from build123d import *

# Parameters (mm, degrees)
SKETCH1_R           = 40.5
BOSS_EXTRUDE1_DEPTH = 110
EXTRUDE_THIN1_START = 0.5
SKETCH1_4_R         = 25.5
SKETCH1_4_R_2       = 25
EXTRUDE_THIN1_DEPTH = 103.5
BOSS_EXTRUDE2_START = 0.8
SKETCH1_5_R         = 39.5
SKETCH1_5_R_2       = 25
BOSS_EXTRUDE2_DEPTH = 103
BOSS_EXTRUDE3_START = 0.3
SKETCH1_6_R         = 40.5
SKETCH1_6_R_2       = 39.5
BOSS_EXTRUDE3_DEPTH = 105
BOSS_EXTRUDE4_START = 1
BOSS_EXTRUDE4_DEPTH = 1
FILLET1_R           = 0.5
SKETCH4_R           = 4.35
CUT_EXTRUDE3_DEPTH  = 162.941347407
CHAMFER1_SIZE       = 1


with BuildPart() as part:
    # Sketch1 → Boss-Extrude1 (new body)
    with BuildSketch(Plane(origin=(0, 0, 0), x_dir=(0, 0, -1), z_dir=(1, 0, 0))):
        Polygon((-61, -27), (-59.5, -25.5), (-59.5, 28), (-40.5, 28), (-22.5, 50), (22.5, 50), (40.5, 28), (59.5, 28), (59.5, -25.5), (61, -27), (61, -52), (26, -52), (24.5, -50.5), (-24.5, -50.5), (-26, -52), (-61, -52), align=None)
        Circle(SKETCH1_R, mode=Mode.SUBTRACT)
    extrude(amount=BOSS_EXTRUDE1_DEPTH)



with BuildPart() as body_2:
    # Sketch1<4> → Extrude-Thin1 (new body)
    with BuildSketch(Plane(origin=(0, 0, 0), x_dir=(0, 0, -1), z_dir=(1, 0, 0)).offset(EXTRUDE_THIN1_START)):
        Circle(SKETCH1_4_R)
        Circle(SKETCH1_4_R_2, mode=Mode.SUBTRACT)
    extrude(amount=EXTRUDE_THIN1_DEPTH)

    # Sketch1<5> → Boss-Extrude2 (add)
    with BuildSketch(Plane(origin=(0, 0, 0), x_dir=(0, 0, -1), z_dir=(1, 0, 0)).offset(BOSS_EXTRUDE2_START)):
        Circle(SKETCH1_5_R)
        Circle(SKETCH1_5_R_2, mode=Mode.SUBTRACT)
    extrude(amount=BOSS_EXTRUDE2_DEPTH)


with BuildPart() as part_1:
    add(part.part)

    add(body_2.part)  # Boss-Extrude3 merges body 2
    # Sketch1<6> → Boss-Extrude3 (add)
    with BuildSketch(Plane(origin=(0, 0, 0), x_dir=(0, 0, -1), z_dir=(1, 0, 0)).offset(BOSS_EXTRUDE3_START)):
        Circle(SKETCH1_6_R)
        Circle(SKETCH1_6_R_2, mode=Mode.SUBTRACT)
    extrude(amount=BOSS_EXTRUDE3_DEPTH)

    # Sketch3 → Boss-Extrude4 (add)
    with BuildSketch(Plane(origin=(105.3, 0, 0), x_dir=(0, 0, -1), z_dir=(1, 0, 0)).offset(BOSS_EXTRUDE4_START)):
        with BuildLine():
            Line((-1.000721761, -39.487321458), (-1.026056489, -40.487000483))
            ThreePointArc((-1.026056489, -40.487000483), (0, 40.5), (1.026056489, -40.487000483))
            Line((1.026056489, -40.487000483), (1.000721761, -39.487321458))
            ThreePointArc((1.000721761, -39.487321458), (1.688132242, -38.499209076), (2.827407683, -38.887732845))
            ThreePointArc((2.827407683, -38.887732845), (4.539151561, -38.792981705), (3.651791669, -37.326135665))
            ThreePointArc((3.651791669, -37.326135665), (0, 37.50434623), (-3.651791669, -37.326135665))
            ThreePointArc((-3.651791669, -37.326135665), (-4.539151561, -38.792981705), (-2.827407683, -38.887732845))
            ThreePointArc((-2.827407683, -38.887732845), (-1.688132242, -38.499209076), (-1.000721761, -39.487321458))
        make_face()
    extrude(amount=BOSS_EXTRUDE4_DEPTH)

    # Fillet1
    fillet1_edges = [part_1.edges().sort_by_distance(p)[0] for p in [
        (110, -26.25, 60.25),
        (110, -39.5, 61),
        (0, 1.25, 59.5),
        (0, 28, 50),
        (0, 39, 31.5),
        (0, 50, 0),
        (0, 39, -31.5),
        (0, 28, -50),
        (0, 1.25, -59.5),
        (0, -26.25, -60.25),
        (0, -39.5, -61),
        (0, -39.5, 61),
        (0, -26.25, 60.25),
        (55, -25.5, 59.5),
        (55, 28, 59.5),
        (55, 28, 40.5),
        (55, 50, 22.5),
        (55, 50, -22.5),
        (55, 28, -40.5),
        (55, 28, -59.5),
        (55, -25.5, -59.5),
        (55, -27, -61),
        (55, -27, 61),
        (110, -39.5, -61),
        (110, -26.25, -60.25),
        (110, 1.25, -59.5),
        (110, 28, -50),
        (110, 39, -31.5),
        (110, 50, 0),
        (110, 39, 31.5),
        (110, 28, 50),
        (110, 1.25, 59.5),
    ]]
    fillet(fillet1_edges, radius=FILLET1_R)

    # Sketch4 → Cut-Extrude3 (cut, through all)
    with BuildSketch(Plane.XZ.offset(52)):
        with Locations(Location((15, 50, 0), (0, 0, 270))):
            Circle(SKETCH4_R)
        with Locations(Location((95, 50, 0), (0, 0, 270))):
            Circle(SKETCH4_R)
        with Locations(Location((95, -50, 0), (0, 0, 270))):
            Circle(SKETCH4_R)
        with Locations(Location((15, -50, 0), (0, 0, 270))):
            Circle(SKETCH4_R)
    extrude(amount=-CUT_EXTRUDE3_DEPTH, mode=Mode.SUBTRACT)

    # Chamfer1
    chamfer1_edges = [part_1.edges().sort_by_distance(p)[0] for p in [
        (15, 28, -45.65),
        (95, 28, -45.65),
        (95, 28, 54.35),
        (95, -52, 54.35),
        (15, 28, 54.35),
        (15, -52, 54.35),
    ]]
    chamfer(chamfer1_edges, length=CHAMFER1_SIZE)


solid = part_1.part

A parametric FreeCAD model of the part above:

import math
import FreeCAD as App
import Part
import Sketcher

V = App.Vector
Q = App.Units.Quantity


def edges_at(feature, points):
    """Names of the edges that pass closest to the given points."""
    edges = feature.Shape.Edges
    near = lambda p: min(range(len(edges)), key=lambda i: edges[i].distToShape(Part.Vertex(*p))[0])
    return sorted({f"Edge{near(p) + 1}" for p in points})


def add_polygon(sketch, points):
    """Adds a closed chain of lines whose ends are joined by coincident constraints."""
    first, n = sketch.GeometryCount, len(points)
    for a, b in zip(points, points[1:] + points[:1]):
        sketch.addGeometry(Part.LineSegment(App.Vector(*a, 0), App.Vector(*b, 0)), False)
    for i in range(n):
        sketch.addConstraint(Sketcher.Constraint("Coincident", first + i, 2, first + (i + 1) % n, 1))

doc = App.newDocument("Part")
body = doc.addObject("PartDesign::Body", "Body")

sketch1 = body.newObject("Sketcher::SketchObject", "Sketch")
sketch1.AttachmentSupport = (doc.getObject("YZ_Plane"), [""])
sketch1.MapMode = "FlatFace"
add_polygon(sketch1, [(-25.5, 59.5), (-27, 61), (-52, 61), (-52, 26), (-50.5, 24.5), (-50.5, -24.5), (-52, -26), (-52, -61), (-27, -61), (-25.5, -59.5), (28, -59.5), (28, -40.5), (50, -22.5), (50, 22.5), (28, 40.5), (28, 59.5)])
sketch1.addGeometry(Part.Circle(V(0, 0, 0), V(0, 0, 1), 40.5), False)
sketch1.addConstraint([
    Sketcher.Constraint("Horizontal", 1),
    Sketcher.Constraint("Vertical", 2),
    Sketcher.Constraint("Vertical", 4),
    Sketcher.Constraint("Vertical", 6),
    Sketcher.Constraint("Horizontal", 7),
    Sketcher.Constraint("Horizontal", 9),
    Sketcher.Constraint("Vertical", 10),
    Sketcher.Constraint("Vertical", 12),
    Sketcher.Constraint("Vertical", 14),
    Sketcher.Constraint("Horizontal", 15),
    Sketcher.Constraint("Coincident", 16, 3, -1, 1),
    Sketcher.Constraint("Symmetric", 2, 2, 5, 2, -1),
    Sketcher.Constraint("Symmetric", 0, 2, 7, 2, -1),
    Sketcher.Constraint("Symmetric", 10, 2, 13, 2, -1),
    Sketcher.Constraint("Symmetric", 8, 2, 15, 2, -1),
    Sketcher.Constraint("Parallel", 0, 3),
    Sketcher.Constraint("Perpendicular", 3, 5),
    Sketcher.Constraint("Parallel", 5, 8),
    Sketcher.Constraint("Equal", 0, 3),
    Sketcher.Constraint("Equal", 11, 13),
    Sketcher.Constraint("Diameter", 16, Q("81 mm")),
    Sketcher.Constraint("DistanceX", 1, 2, 1, 1, Q("25 mm")),
    Sketcher.Constraint("DistanceY", 2, 2, 2, 1, Q("35 mm")),
    Sketcher.Constraint("DistanceY", 4, 2, 4, 1, Q("49 mm")),
    Sketcher.Constraint("DistanceY", 10, 1, 10, 2, Q("19 mm")),
    Sketcher.Constraint("DistanceY", 12, 1, 12, 2, Q("45 mm")),
    Sketcher.Constraint("DistanceX", 9, 1, 9, 2, Q("53.5 mm")),
    Sketcher.Constraint("DistanceX", 0, 2, -1, 1, Q("27 mm")),
    Sketcher.Constraint("DistanceY", -1, 1, 0, 2, Q("61 mm")),
    Sketcher.Constraint("DistanceX", -1, 1, 11, 2, Q("50 mm")),
])
pad1 = body.newObject("PartDesign::Pad", "Pad")
pad1.Profile = sketch1
pad1.Length = 110
body2 = doc.addObject("PartDesign::Body", "Body001")

sketch2 = body2.newObject("Sketcher::SketchObject", "Sketch001")
sketch2.AttachmentSupport = (doc.getObject("YZ_Plane001"), [""])
sketch2.MapMode = "FlatFace"
sketch2.AttachmentOffset = App.Placement(V(0, 0, 0.5), App.Rotation())
sketch2.addGeometry([
    Part.Circle(V(0, 0, 0), V(0, 0, 1), 26),
    Part.Circle(V(0, 0, 0), V(0, 0, 1), 25),
], False)
sketch2.addConstraint([
    Sketcher.Constraint("Coincident", 0, 3, -1, 1),
    Sketcher.Constraint("Coincident", 1, 3, -1, 1),
    Sketcher.Constraint("Diameter", 0, Q("51 mm")),
    Sketcher.Constraint("Diameter", 1, Q("50 mm")),
])
pad2 = body2.newObject("PartDesign::Pad", "Pad001")
pad2.Profile = sketch2
pad2.Length = 103.5

sketch3 = body2.newObject("Sketcher::SketchObject", "Sketch002")
sketch3.AttachmentSupport = (doc.getObject("YZ_Plane001"), [""])
sketch3.MapMode = "FlatFace"
sketch3.AttachmentOffset = App.Placement(V(0, 0, 0.8), App.Rotation())
sketch3.addGeometry([
    Part.Circle(V(0, 0, 0), V(0, 0, 1), 40),
    Part.Circle(V(0, 0, 0), V(0, 0, 1), 25),
], False)
sketch3.addConstraint([
    Sketcher.Constraint("Coincident", 0, 3, -1, 1),
    Sketcher.Constraint("Coincident", 1, 3, -1, 1),
    Sketcher.Constraint("Diameter", 0, Q("79 mm")),
    Sketcher.Constraint("Diameter", 1, Q("50 mm")),
])
pad3 = body2.newObject("PartDesign::Pad", "Pad002")
pad3.Profile = sketch3
pad3.Length = 103
body.AllowCompound = True
doc.recompute()

boolean = body.newObject("PartDesign::Boolean", "Boolean")
boolean.Type = "Fuse"
boolean.addObjects([body2])

sketch4 = body.newObject("Sketcher::SketchObject", "Sketch003")
sketch4.AttachmentSupport = (doc.getObject("YZ_Plane"), [""])
sketch4.MapMode = "FlatFace"
sketch4.AttachmentOffset = App.Placement(V(0, 0, 0.3), App.Rotation())
sketch4.addGeometry([
    Part.Circle(V(0, 0, 0), V(0, 0, 1), 40),
    Part.Circle(V(0, 0, 0), V(0, 0, 1), 40),
], False)
sketch4.addConstraint([
    Sketcher.Constraint("Coincident", 0, 3, -1, 1),
    Sketcher.Constraint("Coincident", 1, 3, -1, 1),
    Sketcher.Constraint("Diameter", 0, Q("81 mm")),
    Sketcher.Constraint("Diameter", 1, Q("79 mm")),
])
pad4 = body.newObject("PartDesign::Pad", "Pad003")
pad4.Profile = sketch4
pad4.Length = 105

sketch5 = body.newObject("Sketcher::SketchObject", "Sketch004")
sketch5.AttachmentSupport = (doc.getObject("YZ_Plane"), [""])
sketch5.MapMode = "FlatFace"
sketch5.AttachmentOffset = App.Placement(V(0, 0, 106.3), App.Rotation())
sketch5.addGeometry([
    Part.LineSegment(V(-40.5, 1, 0), V(-39.5, 1, 0)),
    Part.ArcOfCircle(Part.Circle(V(-39.4, 2, 0), V(0, 0, 1), 1), math.radians(-92), math.radians(56)),
    Part.ArcOfCircle(Part.Circle(V(-38.3, 3.7, 0), V(0, 0, 1), 1), math.radians(0), math.radians(236)),
    Part.ArcOfCircle(Part.Circle(V(0, 0, 0), V(0, 0, 1), 37.5), math.radians(-174), math.radians(174)),
    Part.ArcOfCircle(Part.Circle(V(-38.3, -3.7, 0), V(0, 0, 1), 1), math.radians(124), math.radians(360)),
    Part.ArcOfCircle(Part.Circle(V(-39.4, -2, 0), V(0, 0, 1), 1), math.radians(-56), math.radians(92)),
    Part.LineSegment(V(-39.5, -1, 0), V(-40.5, -1, 0)),
    Part.ArcOfCircle(Part.Circle(V(0, 0, 0), V(0, 0, 1), 40.5), math.radians(-179), math.radians(179)),
], False)
sketch5.addConstraint([
    Sketcher.Constraint("Coincident", 0, 2, 1, 1),
    Sketcher.Constraint("Tangent", 1, 2, 2, 2),
    Sketcher.Constraint("Coincident", 2, 1, 3, 2),
    Sketcher.Constraint("Coincident", 3, 1, 4, 2),
    Sketcher.Constraint("Tangent", 4, 1, 5, 1),
    Sketcher.Constraint("Coincident", 5, 2, 6, 1),
    Sketcher.Constraint("Coincident", 6, 2, 7, 1),
    Sketcher.Constraint("Coincident", 7, 2, 0, 1),
    Sketcher.Constraint("Coincident", 3, 3, -1, 1),
    Sketcher.Constraint("Coincident", 7, 3, -1, 1),
    Sketcher.Constraint("Equal", 1, 2),
    Sketcher.Constraint("Equal", 2, 4),
    Sketcher.Constraint("Equal", 4, 5),
    Sketcher.Constraint("Symmetric", 2, 3, 4, 3, -1),
    Sketcher.Constraint("Symmetric", 0, 2, 5, 2, -1),
    Sketcher.Constraint("Vertical", 6, 2, 7, 2),
    Sketcher.Constraint("Radius", 1, Q("1 mm")),
    Sketcher.Constraint("Radius", 7, Q("40.5 mm")),
    Sketcher.Constraint("Distance", 0, Q("1 mm")),
    Sketcher.Constraint("DistanceY", -1, 1, 1, 3, Q("2 mm")),
    Sketcher.Constraint("DistanceX", 6, 2, -1, 1, Q("40.487 mm")),
    Sketcher.Constraint("Radius", 3, Q("37.504346 mm")),
    Sketcher.Constraint("DistanceX", 1, 2, 2, 3, Q("0.561602 mm")),
    Sketcher.Constraint("DistanceY", 3, 1, 1, 2, Q("6.479199 mm")),
])
pad5 = body.newObject("PartDesign::Pad", "Pad004")
pad5.Profile = sketch5
pad5.Length = 1
doc.recompute()

fillet = body.newObject("PartDesign::Fillet", "Fillet")
fillet.Base = (pad5, edges_at(pad5, [
    (110, -26.25, 60.25),
    (110, -39.5, 61),
    (0, 1.25, 59.5),
    (0, 28, 50),
    (0, 39, 31.5),
    (0, 50, 0),
    (0, 39, -31.5),
    (0, 28, -50),
    (0, 1.25, -59.5),
    (0, -26.25, -60.25),
    (0, -39.5, -61),
    (0, -39.5, 61),
    (0, -26.25, 60.25),
    (55, -25.5, 59.5),
    (55, 28, 59.5),
    (55, 28, 40.5),
    (55, 50, 22.5),
    (55, 50, -22.5),
    (55, 28, -40.5),
    (55, 28, -59.5),
    (55, -25.5, -59.5),
    (55, -27, -61),
    (55, -27, 61),
    (110, -39.5, -61),
    (110, -26.25, -60.25),
    (110, 1.25, -59.5),
    (110, 28, -50),
    (110, 39, -31.5),
    (110, 50, 0),
    (110, 39, 31.5),
    (110, 28, 50),
    (110, 1.25, 59.5),
]))
fillet.Radius = 0.5

sketch6 = body.newObject("Sketcher::SketchObject", "Sketch005")
sketch6.AttachmentSupport = (doc.getObject("XZ_Plane"), [""])
sketch6.MapMode = "FlatFace"
sketch6.AttachmentOffset = App.Placement(V(0, 0, 52), App.Rotation())
sketch6.addGeometry([
    Part.Circle(V(15, 50, 0), V(0, 0, 1), 4.3),
    Part.Circle(V(95, 50, 0), V(0, 0, 1), 4.3),
    Part.Circle(V(95, -50, 0), V(0, 0, 1), 4.3),
    Part.Circle(V(15, -50, 0), V(0, 0, 1), 4.3),
], False)
sketch6.addConstraint([
    Sketcher.Constraint("Equal", 0, 1),
    Sketcher.Constraint("Equal", 1, 2),
    Sketcher.Constraint("Equal", 2, 3),
    Sketcher.Constraint("Symmetric", 1, 3, 2, 3, -1),
    Sketcher.Constraint("Symmetric", 0, 3, 3, 3, -1),
    Sketcher.Constraint("Horizontal", 0, 3, 1, 3),
    Sketcher.Constraint("Diameter", 0, Q("8.7 mm")),
    Sketcher.Constraint("DistanceX", -1, 1, 0, 3, Q("15 mm")),
    Sketcher.Constraint("DistanceY", -1, 1, 0, 3, Q("50 mm")),
    Sketcher.Constraint("DistanceX", -1, 1, 1, 3, Q("95 mm")),
])
pocket1 = body.newObject("PartDesign::Pocket", "Pocket")
pocket1.Profile = sketch6
pocket1.Type = "ThroughAll"
doc.recompute()

chamfer = body.newObject("PartDesign::Chamfer", "Chamfer")
chamfer.Base = (pocket1, edges_at(pocket1, [
    (15, 28, -45.65),
    (95, 28, -45.65),
    (95, 28, 54.35),
    (95, -52, 54.35),
    (15, 28, 54.35),
    (15, -52, 54.35),
]))
chamfer.Size = 1

doc.recompute()
